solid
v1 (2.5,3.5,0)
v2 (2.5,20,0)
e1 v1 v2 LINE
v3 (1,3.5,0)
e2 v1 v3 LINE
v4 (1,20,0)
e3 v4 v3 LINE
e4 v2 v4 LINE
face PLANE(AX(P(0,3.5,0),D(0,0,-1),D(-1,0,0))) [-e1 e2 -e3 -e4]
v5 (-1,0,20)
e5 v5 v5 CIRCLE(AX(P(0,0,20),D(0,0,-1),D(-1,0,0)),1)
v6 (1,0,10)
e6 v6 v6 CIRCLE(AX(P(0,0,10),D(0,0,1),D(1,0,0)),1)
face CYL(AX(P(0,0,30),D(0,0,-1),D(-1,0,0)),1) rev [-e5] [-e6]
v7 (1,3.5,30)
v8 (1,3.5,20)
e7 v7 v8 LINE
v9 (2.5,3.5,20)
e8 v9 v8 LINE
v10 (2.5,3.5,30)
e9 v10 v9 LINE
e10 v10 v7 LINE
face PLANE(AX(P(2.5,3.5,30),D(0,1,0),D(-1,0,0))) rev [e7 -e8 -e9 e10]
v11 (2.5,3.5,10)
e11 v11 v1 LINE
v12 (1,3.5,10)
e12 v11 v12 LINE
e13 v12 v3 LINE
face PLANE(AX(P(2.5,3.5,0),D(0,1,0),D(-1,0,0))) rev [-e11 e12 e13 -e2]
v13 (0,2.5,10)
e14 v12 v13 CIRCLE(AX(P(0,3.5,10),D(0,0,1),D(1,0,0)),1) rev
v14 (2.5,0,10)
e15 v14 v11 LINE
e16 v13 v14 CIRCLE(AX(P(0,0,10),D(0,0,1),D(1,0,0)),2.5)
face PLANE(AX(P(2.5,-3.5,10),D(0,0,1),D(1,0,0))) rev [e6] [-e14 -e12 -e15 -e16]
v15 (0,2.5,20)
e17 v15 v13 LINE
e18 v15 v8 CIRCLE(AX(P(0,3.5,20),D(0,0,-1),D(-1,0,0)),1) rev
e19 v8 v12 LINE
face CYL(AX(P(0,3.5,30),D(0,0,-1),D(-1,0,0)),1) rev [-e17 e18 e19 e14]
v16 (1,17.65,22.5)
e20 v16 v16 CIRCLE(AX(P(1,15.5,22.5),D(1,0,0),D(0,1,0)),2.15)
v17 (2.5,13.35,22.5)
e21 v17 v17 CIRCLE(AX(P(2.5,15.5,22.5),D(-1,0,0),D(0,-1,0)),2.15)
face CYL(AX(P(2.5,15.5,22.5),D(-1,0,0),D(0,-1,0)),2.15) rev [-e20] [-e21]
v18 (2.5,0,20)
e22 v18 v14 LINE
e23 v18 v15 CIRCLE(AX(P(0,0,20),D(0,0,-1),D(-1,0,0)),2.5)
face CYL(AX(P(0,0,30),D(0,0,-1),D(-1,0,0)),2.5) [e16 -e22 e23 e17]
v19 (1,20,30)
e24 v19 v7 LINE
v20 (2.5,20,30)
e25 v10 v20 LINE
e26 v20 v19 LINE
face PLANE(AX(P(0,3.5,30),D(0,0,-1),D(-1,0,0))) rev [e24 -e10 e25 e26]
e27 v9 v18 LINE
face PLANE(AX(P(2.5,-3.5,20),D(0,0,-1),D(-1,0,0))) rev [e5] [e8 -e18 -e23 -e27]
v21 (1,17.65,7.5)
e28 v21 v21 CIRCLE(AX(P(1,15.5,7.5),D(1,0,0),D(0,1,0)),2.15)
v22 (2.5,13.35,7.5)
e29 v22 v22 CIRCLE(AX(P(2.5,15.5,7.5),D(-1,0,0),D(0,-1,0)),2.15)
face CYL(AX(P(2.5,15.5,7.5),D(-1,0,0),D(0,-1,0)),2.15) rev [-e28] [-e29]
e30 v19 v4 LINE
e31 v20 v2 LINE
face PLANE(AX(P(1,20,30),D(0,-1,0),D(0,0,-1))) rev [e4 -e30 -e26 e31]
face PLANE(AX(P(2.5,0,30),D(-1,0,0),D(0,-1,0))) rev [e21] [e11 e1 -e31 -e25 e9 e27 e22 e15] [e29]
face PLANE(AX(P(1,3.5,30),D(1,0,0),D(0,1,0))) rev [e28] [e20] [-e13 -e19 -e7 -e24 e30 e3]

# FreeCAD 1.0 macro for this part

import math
import FreeCAD as App
import Part
import Sketcher
from FreeCAD import Vector


def add_polygon(sketch, points):
    """Adds a closed chain of lines whose ends are joined by coincident constraints."""
    first, n = sketch.GeometryCount, len(points)
    for a, b in zip(points, points[1:] + points[:1]):
        sketch.addGeometry(Part.LineSegment(App.Vector(*a, 0), App.Vector(*b, 0)), False)
    for i in range(n):
        sketch.addConstraint(Sketcher.Constraint("Coincident", first + i, 2, first + (i + 1) % n, 1))

doc = App.newDocument("Part")
body = doc.addObject("PartDesign::Body", "Body")

# Sketch on XY plane
sketch1 = body.newObject("Sketcher::SketchObject", "Sketch")
sketch1.AttachmentSupport = (doc.getObject("XY_Plane"), [""])
sketch1.MapMode = "FlatFace"
sketch1.addGeometry(Part.LineSegment(Vector(1, 20, 0), Vector(1, 3.5, 0)), False)
sketch1.addGeometry(Part.ArcOfCircle(Part.Circle(Vector(0, 3.5, 0), Vector(0, 0, 1), 1), math.radians(-90), math.radians(0)), False)
sketch1.addGeometry(Part.ArcOfCircle(Part.Circle(Vector(0, 0, 0), Vector(0, 0, 1), 2.5), math.radians(90), math.radians(360)), False)
sketch1.addGeometry(Part.LineSegment(Vector(2.5, 0, 0), Vector(2.5, 20, 0)), False)
sketch1.addGeometry(Part.LineSegment(Vector(2.5, 20, 0), Vector(1, 20, 0)), False)
sketch1.addGeometry(Part.Circle(Vector(0, 0, 0), Vector(0, 0, 1), 1), False)
sketch1.addConstraint(Sketcher.Constraint("Tangent", 0, 2, 1, 2))
sketch1.addConstraint(Sketcher.Constraint("Tangent", 1, 1, 2, 1))
sketch1.addConstraint(Sketcher.Constraint("Tangent", 2, 2, 3, 1))
sketch1.addConstraint(Sketcher.Constraint("Coincident", 3, 2, 4, 1))
sketch1.addConstraint(Sketcher.Constraint("Coincident", 4, 2, 0, 1))
sketch1.addConstraint(Sketcher.Constraint("Vertical", 0))
sketch1.addConstraint(Sketcher.Constraint("Vertical", 3))
sketch1.addConstraint(Sketcher.Constraint("Horizontal", 4))
sketch1.addConstraint(Sketcher.Constraint("Coincident", 2, 3, -1, 1))
sketch1.addConstraint(Sketcher.Constraint("Coincident", 5, 3, -1, 1))
sketch1.addConstraint(Sketcher.Constraint("Equal", 1, 5))
sketch1.addConstraint(Sketcher.Constraint("PointOnObject", 1, 3, -2))
sketch1.addConstraint(Sketcher.Constraint("Diameter", 5, 2.0))
sketch1.addConstraint(Sketcher.Constraint("Radius", 2, 2.5))
sketch1.addConstraint(Sketcher.Constraint("DistanceY", 3, 1, 3, 2, 20.0))
pad1 = body.newObject("PartDesign::Pad", "Pad")
pad1.Profile = sketch1
pad1.Length = 30

# Sketch on YZ plane
sketch2 = body.newObject("Sketcher::SketchObject", "Sketch001")
sketch2.AttachmentSupport = (doc.getObject("YZ_Plane"), [""])
sketch2.MapMode = "FlatFace"
sketch2.AttachmentOffset = App.Placement(Vector(0, 0, 1), App.Rotation())
sketch2.addGeometry(Part.Circle(Vector(15.5, 7.5, 0), Vector(0, 0, 1), 2.1), False)  # 0
sketch2.addGeometry(Part.Circle(Vector(15.5, 22.5, 0), Vector(0, 0, 1), 2.1), False)  # 1
add_polygon(sketch2, [(3.5, 0), (-3.5, 0), (-3.5, 10), (3.5, 10)])  # lines 2-5
add_polygon(sketch2, [(3.5, 20), (-3.5, 20), (-3.5, 30), (3.5, 30)])  # lines 6-9
sketch2.addConstraint(Sketcher.Constraint("Horizontal", 2))
sketch2.addConstraint(Sketcher.Constraint("Vertical", 3))
sketch2.addConstraint(Sketcher.Constraint("Horizontal", 4))
sketch2.addConstraint(Sketcher.Constraint("Vertical", 5))
sketch2.addConstraint(Sketcher.Constraint("Horizontal", 6))
sketch2.addConstraint(Sketcher.Constraint("Vertical", 7))
sketch2.addConstraint(Sketcher.Constraint("Horizontal", 8))
sketch2.addConstraint(Sketcher.Constraint("Vertical", 9))
sketch2.addConstraint(Sketcher.Constraint("Equal", 0, 1))
sketch2.addConstraint(Sketcher.Constraint("Symmetric", 2, 2, 5, 2, -1, 1))
sketch2.addConstraint(Sketcher.Constraint("Vertical", 0, 3, 1, 3))
sketch2.addConstraint(Sketcher.Constraint("Vertical", 3, 2, 6, 2))
sketch2.addConstraint(Sketcher.Constraint("Vertical", 5, 2, 8, 2))
sketch2.addConstraint(Sketcher.Constraint("Equal", 5, 7))
sketch2.addConstraint(Sketcher.Constraint("Diameter", 0, 4.3))
sketch2.addConstraint(Sketcher.Constraint("DistanceX", 2, 2, 2, 1, 7.0))
sketch2.addConstraint(Sketcher.Constraint("DistanceY", 3, 1, 3, 2, 10.0))
sketch2.addConstraint(Sketcher.Constraint("DistanceY", -1, 1, 6, 2, 20.0))
sketch2.addConstraint(Sketcher.Constraint("DistanceY", 0, 3, 1, 3, 15.0))
sketch2.addConstraint(Sketcher.Constraint("DistanceX", 2, 2, 0, 3, 19.0))
sketch2.addConstraint(Sketcher.Constraint("DistanceY", -1, 1, 0, 3, 7.5))
pocket1 = body.newObject("PartDesign::Pocket", "Pocket")
pocket1.Profile = sketch2
pocket1.Type = "ThroughAll"
pocket1.Midplane = True

doc.recompute()
